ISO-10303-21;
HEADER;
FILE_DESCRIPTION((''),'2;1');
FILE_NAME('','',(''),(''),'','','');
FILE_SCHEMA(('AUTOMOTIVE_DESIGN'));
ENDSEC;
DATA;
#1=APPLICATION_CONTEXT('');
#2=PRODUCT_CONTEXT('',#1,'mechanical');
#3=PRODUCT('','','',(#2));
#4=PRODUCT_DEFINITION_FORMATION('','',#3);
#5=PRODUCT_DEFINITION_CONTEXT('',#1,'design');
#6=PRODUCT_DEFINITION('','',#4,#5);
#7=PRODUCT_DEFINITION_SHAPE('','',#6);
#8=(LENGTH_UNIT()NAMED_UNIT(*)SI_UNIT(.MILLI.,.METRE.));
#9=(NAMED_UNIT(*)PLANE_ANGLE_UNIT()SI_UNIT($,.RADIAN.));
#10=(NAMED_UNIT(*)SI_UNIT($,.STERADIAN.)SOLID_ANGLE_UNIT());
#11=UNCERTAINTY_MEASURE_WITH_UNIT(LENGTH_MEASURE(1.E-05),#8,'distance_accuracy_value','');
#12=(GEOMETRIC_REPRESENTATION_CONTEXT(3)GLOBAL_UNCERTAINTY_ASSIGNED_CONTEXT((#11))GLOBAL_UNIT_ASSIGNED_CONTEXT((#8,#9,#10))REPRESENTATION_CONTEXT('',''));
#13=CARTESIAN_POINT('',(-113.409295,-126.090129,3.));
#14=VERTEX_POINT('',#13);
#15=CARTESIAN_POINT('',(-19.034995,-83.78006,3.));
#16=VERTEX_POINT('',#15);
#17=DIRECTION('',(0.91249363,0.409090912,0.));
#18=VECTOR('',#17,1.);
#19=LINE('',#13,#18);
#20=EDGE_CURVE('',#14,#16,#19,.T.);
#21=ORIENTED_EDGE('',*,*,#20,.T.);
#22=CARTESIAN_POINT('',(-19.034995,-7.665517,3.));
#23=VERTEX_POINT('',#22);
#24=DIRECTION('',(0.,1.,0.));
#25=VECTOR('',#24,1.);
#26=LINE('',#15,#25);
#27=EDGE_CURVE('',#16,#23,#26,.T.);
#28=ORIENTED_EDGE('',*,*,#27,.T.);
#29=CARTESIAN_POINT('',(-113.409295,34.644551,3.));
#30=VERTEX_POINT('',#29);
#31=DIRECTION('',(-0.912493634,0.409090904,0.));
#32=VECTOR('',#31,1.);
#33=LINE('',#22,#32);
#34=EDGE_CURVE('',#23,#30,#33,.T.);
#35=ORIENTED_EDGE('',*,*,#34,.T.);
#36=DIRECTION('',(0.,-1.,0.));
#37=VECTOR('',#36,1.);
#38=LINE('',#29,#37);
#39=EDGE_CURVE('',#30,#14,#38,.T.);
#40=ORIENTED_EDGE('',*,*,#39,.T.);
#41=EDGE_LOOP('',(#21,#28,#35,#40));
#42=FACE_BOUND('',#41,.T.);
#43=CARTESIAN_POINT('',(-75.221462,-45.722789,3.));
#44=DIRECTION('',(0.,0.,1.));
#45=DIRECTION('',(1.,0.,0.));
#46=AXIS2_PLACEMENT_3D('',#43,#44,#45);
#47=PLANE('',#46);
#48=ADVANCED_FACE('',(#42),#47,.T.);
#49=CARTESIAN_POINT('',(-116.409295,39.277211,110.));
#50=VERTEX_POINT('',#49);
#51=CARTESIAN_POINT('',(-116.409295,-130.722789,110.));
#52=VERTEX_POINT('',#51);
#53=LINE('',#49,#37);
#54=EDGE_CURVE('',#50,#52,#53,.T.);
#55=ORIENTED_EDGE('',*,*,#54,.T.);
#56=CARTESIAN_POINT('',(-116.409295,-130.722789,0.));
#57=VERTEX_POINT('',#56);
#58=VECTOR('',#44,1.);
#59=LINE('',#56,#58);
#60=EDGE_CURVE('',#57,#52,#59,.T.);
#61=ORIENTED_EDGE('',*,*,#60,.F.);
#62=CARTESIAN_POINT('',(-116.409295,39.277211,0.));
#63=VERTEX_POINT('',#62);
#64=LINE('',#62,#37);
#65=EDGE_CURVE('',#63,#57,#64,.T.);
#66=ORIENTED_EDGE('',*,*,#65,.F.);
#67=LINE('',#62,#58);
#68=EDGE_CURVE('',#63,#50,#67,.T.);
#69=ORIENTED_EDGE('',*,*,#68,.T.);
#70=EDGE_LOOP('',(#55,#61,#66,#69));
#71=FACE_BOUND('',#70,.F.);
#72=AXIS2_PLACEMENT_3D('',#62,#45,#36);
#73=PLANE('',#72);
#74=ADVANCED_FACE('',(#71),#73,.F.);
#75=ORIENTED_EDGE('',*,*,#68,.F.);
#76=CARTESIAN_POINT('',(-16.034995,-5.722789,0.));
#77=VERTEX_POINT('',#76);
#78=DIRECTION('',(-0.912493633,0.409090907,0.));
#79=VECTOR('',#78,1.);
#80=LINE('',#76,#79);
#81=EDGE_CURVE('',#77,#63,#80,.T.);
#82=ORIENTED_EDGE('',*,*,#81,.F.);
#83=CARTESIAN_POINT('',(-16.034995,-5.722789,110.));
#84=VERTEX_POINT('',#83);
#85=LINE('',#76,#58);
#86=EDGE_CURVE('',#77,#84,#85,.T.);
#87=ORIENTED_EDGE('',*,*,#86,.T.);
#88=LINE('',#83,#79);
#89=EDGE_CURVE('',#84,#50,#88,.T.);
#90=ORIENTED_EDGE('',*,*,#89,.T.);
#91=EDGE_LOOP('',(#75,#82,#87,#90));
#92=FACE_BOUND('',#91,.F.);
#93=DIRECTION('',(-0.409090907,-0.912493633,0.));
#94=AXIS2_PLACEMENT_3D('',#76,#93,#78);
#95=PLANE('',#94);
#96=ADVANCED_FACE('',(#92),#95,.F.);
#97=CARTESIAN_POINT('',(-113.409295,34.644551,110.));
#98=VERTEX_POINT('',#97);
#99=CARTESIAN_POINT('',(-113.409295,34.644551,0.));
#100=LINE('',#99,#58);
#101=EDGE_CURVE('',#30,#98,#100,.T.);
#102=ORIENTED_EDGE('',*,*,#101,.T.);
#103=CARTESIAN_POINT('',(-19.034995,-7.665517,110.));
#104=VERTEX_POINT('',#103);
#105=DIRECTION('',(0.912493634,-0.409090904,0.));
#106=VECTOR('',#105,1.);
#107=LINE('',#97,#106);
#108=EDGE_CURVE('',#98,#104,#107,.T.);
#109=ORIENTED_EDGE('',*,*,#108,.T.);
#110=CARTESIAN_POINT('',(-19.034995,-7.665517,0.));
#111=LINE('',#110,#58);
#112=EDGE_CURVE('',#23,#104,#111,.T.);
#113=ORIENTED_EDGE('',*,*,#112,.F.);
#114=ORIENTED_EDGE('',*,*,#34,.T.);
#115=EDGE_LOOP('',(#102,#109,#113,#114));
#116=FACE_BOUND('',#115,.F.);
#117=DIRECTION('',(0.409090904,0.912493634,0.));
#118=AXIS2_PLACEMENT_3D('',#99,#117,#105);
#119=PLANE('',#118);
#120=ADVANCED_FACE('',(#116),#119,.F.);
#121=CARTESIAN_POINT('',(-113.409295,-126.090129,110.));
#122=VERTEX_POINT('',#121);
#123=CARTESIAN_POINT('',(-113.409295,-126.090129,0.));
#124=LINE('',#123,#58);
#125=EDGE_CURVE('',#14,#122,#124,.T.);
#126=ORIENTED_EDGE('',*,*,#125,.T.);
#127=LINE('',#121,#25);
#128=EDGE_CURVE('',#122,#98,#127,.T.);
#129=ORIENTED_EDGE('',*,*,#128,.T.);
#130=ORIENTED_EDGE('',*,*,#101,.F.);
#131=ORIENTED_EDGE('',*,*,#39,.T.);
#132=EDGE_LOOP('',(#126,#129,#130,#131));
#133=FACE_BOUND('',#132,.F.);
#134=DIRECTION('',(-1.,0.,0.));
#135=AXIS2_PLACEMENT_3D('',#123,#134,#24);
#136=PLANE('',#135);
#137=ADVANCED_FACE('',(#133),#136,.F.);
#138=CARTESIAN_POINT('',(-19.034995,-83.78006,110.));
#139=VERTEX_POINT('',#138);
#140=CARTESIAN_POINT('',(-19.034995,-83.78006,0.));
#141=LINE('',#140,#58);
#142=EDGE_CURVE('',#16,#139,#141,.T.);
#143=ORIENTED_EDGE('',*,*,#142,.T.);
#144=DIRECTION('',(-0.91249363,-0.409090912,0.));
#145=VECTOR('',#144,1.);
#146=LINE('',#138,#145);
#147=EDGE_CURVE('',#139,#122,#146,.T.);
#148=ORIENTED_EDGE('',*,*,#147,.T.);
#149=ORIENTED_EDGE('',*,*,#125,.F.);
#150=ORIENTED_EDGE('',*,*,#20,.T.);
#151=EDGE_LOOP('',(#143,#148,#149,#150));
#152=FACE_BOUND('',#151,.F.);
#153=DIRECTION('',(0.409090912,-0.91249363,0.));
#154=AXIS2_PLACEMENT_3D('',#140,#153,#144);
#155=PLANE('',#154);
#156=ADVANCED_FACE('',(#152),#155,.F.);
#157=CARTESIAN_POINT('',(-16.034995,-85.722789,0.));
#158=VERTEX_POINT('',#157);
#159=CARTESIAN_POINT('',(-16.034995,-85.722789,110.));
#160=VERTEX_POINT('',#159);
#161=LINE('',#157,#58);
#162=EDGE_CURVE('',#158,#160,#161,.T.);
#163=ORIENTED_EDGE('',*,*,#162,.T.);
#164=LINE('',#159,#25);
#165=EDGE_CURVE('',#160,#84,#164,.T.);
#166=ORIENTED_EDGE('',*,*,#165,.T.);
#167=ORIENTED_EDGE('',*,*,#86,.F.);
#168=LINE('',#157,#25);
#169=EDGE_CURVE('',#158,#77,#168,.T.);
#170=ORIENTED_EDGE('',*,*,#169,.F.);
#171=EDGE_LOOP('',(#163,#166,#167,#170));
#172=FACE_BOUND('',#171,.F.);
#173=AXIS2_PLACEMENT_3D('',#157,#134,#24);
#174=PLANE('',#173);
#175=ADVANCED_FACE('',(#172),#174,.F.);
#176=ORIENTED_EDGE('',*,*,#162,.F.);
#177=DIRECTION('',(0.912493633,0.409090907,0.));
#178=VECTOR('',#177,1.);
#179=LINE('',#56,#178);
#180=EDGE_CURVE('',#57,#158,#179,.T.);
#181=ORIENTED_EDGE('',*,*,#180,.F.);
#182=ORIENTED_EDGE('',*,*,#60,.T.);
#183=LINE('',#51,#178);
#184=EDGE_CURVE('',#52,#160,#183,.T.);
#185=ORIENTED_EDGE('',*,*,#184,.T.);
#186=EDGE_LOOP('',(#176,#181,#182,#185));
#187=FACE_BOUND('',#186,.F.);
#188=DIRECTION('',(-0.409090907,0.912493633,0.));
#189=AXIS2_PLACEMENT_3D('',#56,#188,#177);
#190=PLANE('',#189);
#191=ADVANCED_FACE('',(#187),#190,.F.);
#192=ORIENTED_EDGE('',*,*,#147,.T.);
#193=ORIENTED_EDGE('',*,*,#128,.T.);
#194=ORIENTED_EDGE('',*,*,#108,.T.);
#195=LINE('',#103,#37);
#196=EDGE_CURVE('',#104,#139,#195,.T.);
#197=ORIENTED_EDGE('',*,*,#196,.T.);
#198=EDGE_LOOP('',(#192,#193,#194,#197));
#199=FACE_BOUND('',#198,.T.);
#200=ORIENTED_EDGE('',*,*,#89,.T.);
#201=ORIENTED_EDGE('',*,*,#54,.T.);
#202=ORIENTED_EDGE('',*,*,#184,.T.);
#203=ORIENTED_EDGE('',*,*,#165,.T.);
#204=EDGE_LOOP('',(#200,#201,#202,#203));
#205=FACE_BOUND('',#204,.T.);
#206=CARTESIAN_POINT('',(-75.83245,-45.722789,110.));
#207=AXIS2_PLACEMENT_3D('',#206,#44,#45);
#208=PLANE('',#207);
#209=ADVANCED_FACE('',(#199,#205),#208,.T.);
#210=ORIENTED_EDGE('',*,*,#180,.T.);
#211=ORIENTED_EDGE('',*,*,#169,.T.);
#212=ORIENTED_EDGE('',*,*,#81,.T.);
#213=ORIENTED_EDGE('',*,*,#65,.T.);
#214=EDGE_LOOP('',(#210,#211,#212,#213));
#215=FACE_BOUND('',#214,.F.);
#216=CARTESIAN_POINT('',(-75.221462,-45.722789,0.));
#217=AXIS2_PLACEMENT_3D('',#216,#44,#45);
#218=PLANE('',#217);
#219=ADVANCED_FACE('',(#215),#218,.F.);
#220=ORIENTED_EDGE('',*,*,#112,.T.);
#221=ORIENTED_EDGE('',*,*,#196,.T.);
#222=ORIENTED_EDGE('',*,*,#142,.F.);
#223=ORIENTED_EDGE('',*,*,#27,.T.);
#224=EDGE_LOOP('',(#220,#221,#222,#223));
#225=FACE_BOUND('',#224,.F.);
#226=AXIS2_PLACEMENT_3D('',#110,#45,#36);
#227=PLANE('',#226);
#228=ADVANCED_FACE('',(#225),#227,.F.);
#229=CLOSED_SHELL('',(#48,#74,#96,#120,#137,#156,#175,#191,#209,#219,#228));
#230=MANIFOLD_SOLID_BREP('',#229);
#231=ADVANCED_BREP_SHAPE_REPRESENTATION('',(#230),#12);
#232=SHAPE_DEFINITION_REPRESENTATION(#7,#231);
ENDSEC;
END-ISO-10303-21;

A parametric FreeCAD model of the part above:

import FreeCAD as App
import Part
import Sketcher

doc = App.newDocument("Part")
body = doc.addObject("PartDesign::Body", "Body")

sketch1 = body.newObject("Sketcher::SketchObject", "Sketch")
sketch1.AttachmentSupport = (doc.getObject("XY_Plane"), [""])
sketch1.MapMode = "FlatFace"
sketch1.addGeometry(Part.LineSegment(App.Vector(-16, -6, 0), App.Vector(-116, 39, 0)), False)
sketch1.addGeometry(Part.LineSegment(App.Vector(-116, 39, 0), App.Vector(-116, -131, 0)), False)
sketch1.addGeometry(Part.LineSegment(App.Vector(-116, -131, 0), App.Vector(-16, -86, 0)), False)
sketch1.addGeometry(Part.LineSegment(App.Vector(-16, -86, 0), App.Vector(-16, -6, 0)), False)
sketch1.addGeometry(Part.LineSegment(App.Vector(-19, -84, 0), App.Vector(-113, -126, 0)), False)
sketch1.addGeometry(Part.LineSegment(App.Vector(-113, -126, 0), App.Vector(-113, 35, 0)), False)
sketch1.addGeometry(Part.LineSegment(App.Vector(-113, 35, 0), App.Vector(-19, -8, 0)), False)
sketch1.addGeometry(Part.LineSegment(App.Vector(-19, -8, 0), App.Vector(-19, -84, 0)), False)
sketch1.addConstraint(Sketcher.Constraint("Coincident", 0, 2, 1, 1))
sketch1.addConstraint(Sketcher.Constraint("Coincident", 1, 2, 2, 1))
sketch1.addConstraint(Sketcher.Constraint("Coincident", 2, 2, 3, 1))
sketch1.addConstraint(Sketcher.Constraint("Coincident", 3, 2, 0, 1))
sketch1.addConstraint(Sketcher.Constraint("Coincident", 4, 2, 5, 1))
sketch1.addConstraint(Sketcher.Constraint("Coincident", 5, 2, 6, 1))
sketch1.addConstraint(Sketcher.Constraint("Coincident", 6, 2, 7, 1))
sketch1.addConstraint(Sketcher.Constraint("Coincident", 7, 2, 4, 1))
sketch1.addConstraint(Sketcher.Constraint("Vertical", 1))
sketch1.addConstraint(Sketcher.Constraint("Vertical", 3))
sketch1.addConstraint(Sketcher.Constraint("Vertical", 5))
sketch1.addConstraint(Sketcher.Constraint("Vertical", 7))
sketch1.addConstraint(Sketcher.Constraint("Parallel", 2, 4))
sketch1.addConstraint(Sketcher.Constraint("Parallel", 0, 6))
sketch1.addConstraint(Sketcher.Constraint("Equal", 0, 2))
sketch1.addConstraint(Sketcher.Constraint("DistanceY", 1, 2, 1, 1, 170.0))
sketch1.addConstraint(Sketcher.Constraint("DistanceY", 3, 1, 3, 2, 80.0))
sketch1.addConstraint(Sketcher.Constraint("Distance", 0, 110.0))
sketch1.addConstraint(Sketcher.Constraint("DistanceX", 1, 2, 4, 2, 3.0))
sketch1.addConstraint(Sketcher.Constraint("DistanceX", 6, 2, 3, 2, 3.0))
sketch1.addConstraint(Sketcher.Constraint("DistanceY", 5, 1, 5, 2, 160.73468))
sketch1.addConstraint(Sketcher.Constraint("DistanceY", -1, 1, 0, 2, 39.277211))
sketch1.addConstraint(Sketcher.Constraint("DistanceY", 4, 2, -1, 1, 126.090129))
sketch1.addConstraint(Sketcher.Constraint("DistanceX", 0, 2, -1, 1, 116.409295))
pad1 = body.newObject("PartDesign::Pad", "Pad")
pad1.Profile = sketch1
pad1.Length = 110

sketch2 = body.newObject("Sketcher::SketchObject", "Sketch001")
sketch2.AttachmentSupport = (doc.getObject("XY_Plane"), [""])
sketch2.MapMode = "FlatFace"
sketch2.addGeometry(Part.LineSegment(App.Vector(-19, -8, 0), App.Vector(-113, 35, 0)), False)
sketch2.addGeometry(Part.LineSegment(App.Vector(-113, 35, 0), App.Vector(-113, -126, 0)), False)
sketch2.addGeometry(Part.LineSegment(App.Vector(-113, -126, 0), App.Vector(-19, -84, 0)), False)
sketch2.addGeometry(Part.LineSegment(App.Vector(-19, -84, 0), App.Vector(-19, -8, 0)), False)
sketch2.addConstraint(Sketcher.Constraint("Coincident", 0, 2, 1, 1))
sketch2.addConstraint(Sketcher.Constraint("Coincident", 1, 2, 2, 1))
sketch2.addConstraint(Sketcher.Constraint("Coincident", 2, 2, 3, 1))
sketch2.addConstraint(Sketcher.Constraint("Coincident", 3, 2, 0, 1))
sketch2.addConstraint(Sketcher.Constraint("Vertical", 1))
sketch2.addConstraint(Sketcher.Constraint("Vertical", 3))
sketch2.addConstraint(Sketcher.Constraint("Equal", 0, 2))
sketch2.addConstraint(Sketcher.Constraint("DistanceY", 1, 2, 1, 1, 160.73468))
sketch2.addConstraint(Sketcher.Constraint("DistanceX", 1, 2, 2, 2, 94.3743))
sketch2.addConstraint(Sketcher.Constraint("Distance", 0, 103.424612))
sketch2.addConstraint(Sketcher.Constraint("DistanceY", -1, 1, 0, 2, 34.644551))
sketch2.addConstraint(Sketcher.Constraint("DistanceX", 0, 2, -1, 1, 113.409295))
pad2 = body.newObject("PartDesign::Pad", "Pad001")
pad2.Profile = sketch2
pad2.Length = 3

doc.recompute()
